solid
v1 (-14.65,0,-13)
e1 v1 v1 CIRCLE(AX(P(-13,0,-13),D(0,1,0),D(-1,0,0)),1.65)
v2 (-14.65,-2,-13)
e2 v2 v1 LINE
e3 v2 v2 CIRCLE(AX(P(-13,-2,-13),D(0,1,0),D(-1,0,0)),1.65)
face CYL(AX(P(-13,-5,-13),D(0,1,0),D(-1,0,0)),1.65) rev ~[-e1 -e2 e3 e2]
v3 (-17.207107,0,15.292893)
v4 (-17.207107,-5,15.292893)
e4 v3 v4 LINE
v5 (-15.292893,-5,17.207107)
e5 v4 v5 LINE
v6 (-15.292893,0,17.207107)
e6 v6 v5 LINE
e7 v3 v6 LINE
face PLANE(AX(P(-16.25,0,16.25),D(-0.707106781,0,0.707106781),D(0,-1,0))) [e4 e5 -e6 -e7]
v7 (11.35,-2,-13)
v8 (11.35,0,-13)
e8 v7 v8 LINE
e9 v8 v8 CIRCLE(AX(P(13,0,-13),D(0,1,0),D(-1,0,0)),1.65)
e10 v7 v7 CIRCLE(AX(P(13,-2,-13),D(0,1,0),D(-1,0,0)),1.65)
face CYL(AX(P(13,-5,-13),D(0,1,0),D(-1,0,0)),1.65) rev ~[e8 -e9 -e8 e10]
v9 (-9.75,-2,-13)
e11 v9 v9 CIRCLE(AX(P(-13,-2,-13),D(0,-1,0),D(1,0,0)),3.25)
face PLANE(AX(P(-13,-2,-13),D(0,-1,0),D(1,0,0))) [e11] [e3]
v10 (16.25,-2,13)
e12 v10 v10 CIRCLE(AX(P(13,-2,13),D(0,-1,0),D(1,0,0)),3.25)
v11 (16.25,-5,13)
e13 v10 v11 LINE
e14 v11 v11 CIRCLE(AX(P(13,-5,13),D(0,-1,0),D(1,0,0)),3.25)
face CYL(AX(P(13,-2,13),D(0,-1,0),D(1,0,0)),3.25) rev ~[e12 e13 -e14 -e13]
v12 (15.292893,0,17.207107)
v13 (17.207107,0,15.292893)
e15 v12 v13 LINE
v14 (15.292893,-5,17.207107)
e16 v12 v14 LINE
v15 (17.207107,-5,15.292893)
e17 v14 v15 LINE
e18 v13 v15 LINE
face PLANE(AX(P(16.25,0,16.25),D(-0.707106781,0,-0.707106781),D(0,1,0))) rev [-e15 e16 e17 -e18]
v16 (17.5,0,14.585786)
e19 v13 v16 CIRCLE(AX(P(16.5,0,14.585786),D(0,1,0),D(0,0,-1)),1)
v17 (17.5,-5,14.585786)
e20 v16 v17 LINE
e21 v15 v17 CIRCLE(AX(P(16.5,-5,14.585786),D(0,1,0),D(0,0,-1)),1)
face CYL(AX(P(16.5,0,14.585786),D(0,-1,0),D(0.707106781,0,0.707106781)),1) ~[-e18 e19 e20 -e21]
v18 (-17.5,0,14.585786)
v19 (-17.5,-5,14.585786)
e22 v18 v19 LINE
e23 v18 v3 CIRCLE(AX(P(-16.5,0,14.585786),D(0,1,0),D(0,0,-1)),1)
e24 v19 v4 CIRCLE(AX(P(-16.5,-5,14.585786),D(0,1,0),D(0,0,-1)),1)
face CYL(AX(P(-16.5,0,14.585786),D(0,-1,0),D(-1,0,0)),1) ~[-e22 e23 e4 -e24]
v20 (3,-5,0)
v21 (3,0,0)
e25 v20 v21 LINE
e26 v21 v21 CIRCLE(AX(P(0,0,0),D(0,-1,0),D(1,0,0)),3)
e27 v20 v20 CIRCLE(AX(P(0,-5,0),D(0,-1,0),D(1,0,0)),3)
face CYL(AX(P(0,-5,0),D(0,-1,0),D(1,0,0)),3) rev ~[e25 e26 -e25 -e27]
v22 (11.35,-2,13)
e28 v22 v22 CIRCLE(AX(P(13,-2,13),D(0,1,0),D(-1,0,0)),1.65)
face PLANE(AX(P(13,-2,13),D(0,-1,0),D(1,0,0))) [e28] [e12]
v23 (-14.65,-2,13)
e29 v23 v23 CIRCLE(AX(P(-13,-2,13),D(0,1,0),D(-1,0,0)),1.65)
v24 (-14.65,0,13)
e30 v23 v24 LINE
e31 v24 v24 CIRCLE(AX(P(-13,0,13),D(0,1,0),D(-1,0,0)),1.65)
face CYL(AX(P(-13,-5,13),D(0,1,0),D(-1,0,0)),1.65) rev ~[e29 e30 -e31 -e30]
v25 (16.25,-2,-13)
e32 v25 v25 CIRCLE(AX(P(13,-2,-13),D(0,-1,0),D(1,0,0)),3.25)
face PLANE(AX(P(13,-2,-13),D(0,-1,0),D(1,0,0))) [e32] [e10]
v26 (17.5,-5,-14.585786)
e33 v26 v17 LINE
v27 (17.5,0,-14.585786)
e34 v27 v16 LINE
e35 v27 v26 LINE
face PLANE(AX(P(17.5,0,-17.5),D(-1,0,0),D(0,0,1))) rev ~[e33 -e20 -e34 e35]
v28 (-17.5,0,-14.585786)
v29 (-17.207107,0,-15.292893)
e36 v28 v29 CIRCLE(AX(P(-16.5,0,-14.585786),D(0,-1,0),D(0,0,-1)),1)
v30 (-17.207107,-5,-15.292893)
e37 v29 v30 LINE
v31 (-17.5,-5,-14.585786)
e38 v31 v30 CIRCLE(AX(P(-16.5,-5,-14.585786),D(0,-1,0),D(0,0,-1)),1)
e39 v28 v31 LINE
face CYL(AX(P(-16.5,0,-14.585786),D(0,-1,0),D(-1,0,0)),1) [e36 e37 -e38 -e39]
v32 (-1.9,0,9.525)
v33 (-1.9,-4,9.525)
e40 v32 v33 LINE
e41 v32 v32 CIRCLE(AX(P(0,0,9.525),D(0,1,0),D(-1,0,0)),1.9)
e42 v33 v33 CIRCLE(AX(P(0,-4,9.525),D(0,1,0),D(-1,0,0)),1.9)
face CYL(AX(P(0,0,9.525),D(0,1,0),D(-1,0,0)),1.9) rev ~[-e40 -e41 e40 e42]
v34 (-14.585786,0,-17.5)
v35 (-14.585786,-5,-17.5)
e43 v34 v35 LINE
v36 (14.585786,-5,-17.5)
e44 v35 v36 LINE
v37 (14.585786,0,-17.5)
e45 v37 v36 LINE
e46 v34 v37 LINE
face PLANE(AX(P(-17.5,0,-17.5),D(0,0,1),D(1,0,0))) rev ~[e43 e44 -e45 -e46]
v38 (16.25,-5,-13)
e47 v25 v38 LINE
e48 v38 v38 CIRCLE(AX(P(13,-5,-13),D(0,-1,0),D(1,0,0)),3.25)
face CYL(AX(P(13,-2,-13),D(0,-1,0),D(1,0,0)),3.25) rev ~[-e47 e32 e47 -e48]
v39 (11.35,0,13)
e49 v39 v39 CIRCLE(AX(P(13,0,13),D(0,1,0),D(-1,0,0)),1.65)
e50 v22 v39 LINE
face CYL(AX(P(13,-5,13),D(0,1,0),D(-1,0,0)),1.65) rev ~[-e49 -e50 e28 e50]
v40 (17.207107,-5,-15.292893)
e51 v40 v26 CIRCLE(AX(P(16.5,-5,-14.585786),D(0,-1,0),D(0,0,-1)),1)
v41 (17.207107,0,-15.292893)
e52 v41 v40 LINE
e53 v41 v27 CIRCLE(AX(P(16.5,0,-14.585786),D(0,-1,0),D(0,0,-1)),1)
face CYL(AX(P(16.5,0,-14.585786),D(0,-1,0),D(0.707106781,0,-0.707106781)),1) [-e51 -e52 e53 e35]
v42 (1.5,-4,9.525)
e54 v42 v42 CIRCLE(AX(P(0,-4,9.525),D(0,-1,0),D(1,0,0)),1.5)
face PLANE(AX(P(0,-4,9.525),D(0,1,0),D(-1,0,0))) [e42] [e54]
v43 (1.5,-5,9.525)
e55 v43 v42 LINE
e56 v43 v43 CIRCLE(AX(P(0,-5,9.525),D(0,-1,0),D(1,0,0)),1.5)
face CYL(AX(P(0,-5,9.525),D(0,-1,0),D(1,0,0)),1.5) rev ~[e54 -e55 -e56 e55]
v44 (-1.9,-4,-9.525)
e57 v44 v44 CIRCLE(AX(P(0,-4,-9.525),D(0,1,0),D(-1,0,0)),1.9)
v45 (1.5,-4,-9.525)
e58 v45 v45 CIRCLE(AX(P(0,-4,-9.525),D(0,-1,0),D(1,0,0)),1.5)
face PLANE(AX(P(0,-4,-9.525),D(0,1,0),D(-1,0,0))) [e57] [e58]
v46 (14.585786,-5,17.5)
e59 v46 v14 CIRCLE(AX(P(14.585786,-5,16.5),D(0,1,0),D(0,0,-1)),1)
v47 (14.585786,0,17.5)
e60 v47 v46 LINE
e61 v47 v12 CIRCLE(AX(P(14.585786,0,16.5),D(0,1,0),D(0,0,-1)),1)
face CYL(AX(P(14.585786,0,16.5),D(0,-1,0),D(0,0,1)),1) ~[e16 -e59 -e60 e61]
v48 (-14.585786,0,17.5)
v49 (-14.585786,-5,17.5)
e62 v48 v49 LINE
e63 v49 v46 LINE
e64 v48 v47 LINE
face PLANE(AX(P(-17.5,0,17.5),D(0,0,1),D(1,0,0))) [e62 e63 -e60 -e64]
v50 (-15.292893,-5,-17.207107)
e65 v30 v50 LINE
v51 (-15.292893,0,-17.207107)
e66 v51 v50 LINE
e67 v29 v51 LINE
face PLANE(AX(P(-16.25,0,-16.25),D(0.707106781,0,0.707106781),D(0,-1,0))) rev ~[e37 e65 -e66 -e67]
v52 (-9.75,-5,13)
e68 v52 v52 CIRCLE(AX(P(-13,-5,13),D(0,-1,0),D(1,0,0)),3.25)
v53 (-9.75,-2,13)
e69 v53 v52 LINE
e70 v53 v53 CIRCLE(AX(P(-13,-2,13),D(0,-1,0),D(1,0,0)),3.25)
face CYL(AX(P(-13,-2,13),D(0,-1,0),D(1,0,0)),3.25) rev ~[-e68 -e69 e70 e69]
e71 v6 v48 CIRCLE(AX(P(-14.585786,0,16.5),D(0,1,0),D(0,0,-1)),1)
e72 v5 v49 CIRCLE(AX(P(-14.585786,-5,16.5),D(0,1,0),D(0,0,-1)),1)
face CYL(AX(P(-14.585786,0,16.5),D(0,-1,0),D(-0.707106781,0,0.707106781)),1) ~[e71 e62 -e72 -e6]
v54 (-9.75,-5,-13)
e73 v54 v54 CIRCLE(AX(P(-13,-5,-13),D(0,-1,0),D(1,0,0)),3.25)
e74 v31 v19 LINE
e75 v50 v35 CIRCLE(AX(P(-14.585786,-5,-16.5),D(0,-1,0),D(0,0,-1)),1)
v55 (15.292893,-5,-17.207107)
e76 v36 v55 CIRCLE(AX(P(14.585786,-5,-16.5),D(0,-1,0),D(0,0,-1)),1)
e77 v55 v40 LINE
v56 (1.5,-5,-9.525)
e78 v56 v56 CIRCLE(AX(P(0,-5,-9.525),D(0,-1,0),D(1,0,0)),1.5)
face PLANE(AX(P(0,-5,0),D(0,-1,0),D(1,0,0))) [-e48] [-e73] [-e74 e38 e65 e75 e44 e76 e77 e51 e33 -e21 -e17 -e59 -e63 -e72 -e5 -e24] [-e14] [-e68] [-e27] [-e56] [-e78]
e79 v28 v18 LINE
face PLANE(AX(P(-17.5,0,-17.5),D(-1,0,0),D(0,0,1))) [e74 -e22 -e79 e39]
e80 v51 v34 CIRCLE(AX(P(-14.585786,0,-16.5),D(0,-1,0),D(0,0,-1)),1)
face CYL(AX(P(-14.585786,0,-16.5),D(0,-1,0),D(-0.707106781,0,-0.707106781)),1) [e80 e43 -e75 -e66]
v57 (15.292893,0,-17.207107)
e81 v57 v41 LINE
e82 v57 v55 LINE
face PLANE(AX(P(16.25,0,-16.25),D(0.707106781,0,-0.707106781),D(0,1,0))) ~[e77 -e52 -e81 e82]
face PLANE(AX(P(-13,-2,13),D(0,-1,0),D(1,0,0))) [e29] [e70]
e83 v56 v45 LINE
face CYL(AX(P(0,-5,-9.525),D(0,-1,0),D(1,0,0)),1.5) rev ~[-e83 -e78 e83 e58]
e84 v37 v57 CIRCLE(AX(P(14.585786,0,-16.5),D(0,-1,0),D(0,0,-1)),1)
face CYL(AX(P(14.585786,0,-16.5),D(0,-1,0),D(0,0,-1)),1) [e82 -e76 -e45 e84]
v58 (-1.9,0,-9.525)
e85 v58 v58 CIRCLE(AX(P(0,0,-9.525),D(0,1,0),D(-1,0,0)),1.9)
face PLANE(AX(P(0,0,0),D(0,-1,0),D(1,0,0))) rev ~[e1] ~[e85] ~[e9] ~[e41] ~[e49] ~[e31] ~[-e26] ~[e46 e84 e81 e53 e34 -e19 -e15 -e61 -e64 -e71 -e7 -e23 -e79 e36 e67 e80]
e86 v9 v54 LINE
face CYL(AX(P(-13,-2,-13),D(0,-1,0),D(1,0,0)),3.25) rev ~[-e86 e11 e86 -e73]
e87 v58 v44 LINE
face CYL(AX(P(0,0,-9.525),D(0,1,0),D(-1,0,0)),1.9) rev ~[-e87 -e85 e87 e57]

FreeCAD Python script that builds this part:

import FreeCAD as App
import Part
import Sketcher

V = App.Vector


def edges_at(feature, points):
    """Names of the edges that pass closest to the given points."""
    edges = feature.Shape.Edges
    near = lambda p: min(range(len(edges)), key=lambda i: edges[i].distToShape(Part.Vertex(*p))[0])
    return sorted({f"Edge{near(p) + 1}" for p in points})


def add_polygon(sketch, points):
    """Adds a closed chain of lines whose ends are joined by coincident constraints."""
    first, n = sketch.GeometryCount, len(points)
    for a, b in zip(points, points[1:] + points[:1]):
        sketch.addGeometry(Part.LineSegment(App.Vector(*a, 0), App.Vector(*b, 0)), False)
    for i in range(n):
        sketch.addConstraint(Sketcher.Constraint("Coincident", first + i, 2, first + (i + 1) % n, 1))

doc = App.newDocument("Part")
body = doc.addObject("PartDesign::Body", "Body")

sketch1 = doc.addObject("Sketcher::SketchObject", "Sketch")
body.addObject(sketch1)
sketch1.AttachmentSupport = (doc.XZ_Plane, [""])
sketch1.MapMode = "FlatFace"
add_polygon(sketch1, [(-17.5, 17.5), (-17.5, -17.5), (17.5, -17.5), (17.5, 17.5)])
sketch1.addConstraint(Sketcher.Constraint("Vertical", 0))
sketch1.addConstraint(Sketcher.Constraint("Horizontal", 1))
sketch1.addConstraint(Sketcher.Constraint("Vertical", 2))
sketch1.addConstraint(Sketcher.Constraint("Horizontal", 3))
sketch1.addConstraint(Sketcher.Constraint("Symmetric", 0, 2, 2, 2, -1, 1))
sketch1.addConstraint(Sketcher.Constraint("Equal", 3, 0))
sketch1.addConstraint(Sketcher.Constraint("DistanceX", 1, 1, 1, 2, 35.0))
pad1 = doc.addObject("PartDesign::Pad", "Pad")
body.addObject(pad1)
pad1.Profile = sketch1
pad1.Length = 5

sketch2 = doc.addObject("Sketcher::SketchObject", "Sketch001")
body.addObject(sketch2)
sketch2.AttachmentSupport = (doc.XZ_Plane, [""])
sketch2.MapMode = "FlatFace"
sketch2.AttachmentOffset = App.Placement(V(0, 0, 5), App.Rotation())
sketch2.addGeometry(Part.Circle(V(0, 0, 0), V(0, 0, 1), 3), False)
sketch2.addConstraint(Sketcher.Constraint("Coincident", 0, 3, -1, 1))
sketch2.addConstraint(Sketcher.Constraint("Diameter", 0, 6.0))
pocket1 = doc.addObject("PartDesign::Pocket", "Pocket")
body.addObject(pocket1)
pocket1.Profile = sketch2
pocket1.Type = "ThroughAll"

sketch3 = doc.addObject("Sketcher::SketchObject", "Sketch002")
body.addObject(sketch3)
sketch3.AttachmentSupport = (doc.XZ_Plane, [""])
sketch3.MapMode = "FlatFace"
sketch3.AttachmentOffset = App.Placement(V(0, 0, 5), App.Rotation())
sketch3.addGeometry(Part.Circle(V(-13, 13, 0), V(0, 0, 1), 1.65), False)
sketch3.addGeometry(Part.Circle(V(13, 13, 0), V(0, 0, 1), 1.65), False)
sketch3.addGeometry(Part.Circle(V(13, -13, 0), V(0, 0, 1), 1.65), False)
sketch3.addGeometry(Part.Circle(V(-13, -13, 0), V(0, 0, 1), 1.65), False)
sketch3.addConstraint(Sketcher.Constraint("Equal", 0, 1))
sketch3.addConstraint(Sketcher.Constraint("Equal", 1, 2))
sketch3.addConstraint(Sketcher.Constraint("Equal", 2, 3))
sketch3.addConstraint(Sketcher.Constraint("Symmetric", 0, 3, 2, 3, -1, 1))
sketch3.addConstraint(Sketcher.Constraint("Symmetric", 1, 3, 3, 3, -1, 1))
sketch3.addConstraint(Sketcher.Constraint("Symmetric", 0, 3, 1, 3, -2))
sketch3.addConstraint(Sketcher.Constraint("Diameter", 0, 3.3))
sketch3.addConstraint(Sketcher.Constraint("DistanceX", 0, 3, -1, 1, 13.0))
sketch3.addConstraint(Sketcher.Constraint("DistanceY", -1, 1, 0, 3, 13.0))
doc.recompute()
hole = doc.addObject("PartDesign::Hole", "Hole")
body.addObject(hole)
hole.Profile = sketch3
hole.ThreadType = "None"
hole.Diameter = 3.3
hole.DepthType = "ThroughAll"
hole.HoleCutType = "Counterbore"
hole.HoleCutDiameter = 6.5
hole.HoleCutDepth = 3
doc.recompute()

chamfer = doc.addObject("PartDesign::Chamfer", "Chamfer")
body.addObject(chamfer)
chamfer.Base = (hole, edges_at(hole, [
    (17.5, -2.5, 17.5),
    (-17.5, -2.5, 17.5),
    (17.5, -2.5, -17.5),
    (-17.5, -2.5, -17.5),
]))
chamfer.Size = 2.5
doc.recompute()

fillet = doc.addObject("PartDesign::Fillet", "Fillet")
body.addObject(fillet)
fillet.Base = (chamfer, edges_at(chamfer, [
    (15, -2.5, 17.5),
    (17.5, -2.5, 15),
    (17.5, -2.5, -15),
    (15, -2.5, -17.5),
    (-15, -2.5, -17.5),
    (-17.5, -2.5, -15),
    (-15, -2.5, 17.5),
    (-17.5, -2.5, 15),
]))
fillet.Radius = 1

sketch4 = doc.addObject("Sketcher::SketchObject", "Sketch003")
body.addObject(sketch4)
sketch4.AttachmentSupport = (doc.XZ_Plane, [""])
sketch4.MapMode = "FlatFace"
sketch4.AttachmentOffset = App.Placement(V(0, 0, 5), App.Rotation())
sketch4.addGeometry(Part.Circle(V(0, 9.525, 0), V(0, 0, 1), 1.5), False)
sketch4.addGeometry(Part.Circle(V(0, -9.525, 0), V(0, 0, 1), 1.5), False)
sketch4.addConstraint(Sketcher.Constraint("Equal", 0, 1))
sketch4.addConstraint(Sketcher.Constraint("Symmetric", 0, 3, 1, 3, -1, 1))
sketch4.addConstraint(Sketcher.Constraint("PointOnObject", 0, 3, -2))
sketch4.addConstraint(Sketcher.Constraint("Diameter", 0, 3.0))
sketch4.addConstraint(Sketcher.Constraint("DistanceY", 1, 3, 0, 3, 19.05))
pocket2 = doc.addObject("PartDesign::Pocket", "Pocket001")
body.addObject(pocket2)
pocket2.Profile = sketch4
pocket2.Type = "ThroughAll"

sketch5 = doc.addObject("Sketcher::SketchObject", "Sketch004")
body.addObject(sketch5)
sketch5.AttachmentSupport = (doc.XZ_Plane, [""])
sketch5.MapMode = "FlatFace"
sketch5.addGeometry(Part.Circle(V(0, -9.525, 0), V(0, 0, 1), 1.9), False)
sketch5.addGeometry(Part.Circle(V(0, 9.525, 0), V(0, 0, 1), 1.9), False)
sketch5.addConstraint(Sketcher.Constraint("Equal", 0, 1))
sketch5.addConstraint(Sketcher.Constraint("Symmetric", 0, 3, 1, 3, -1, 1))
sketch5.addConstraint(Sketcher.Constraint("PointOnObject", 0, 3, -2))
sketch5.addConstraint(Sketcher.Constraint("Diameter", 0, 3.8))
sketch5.addConstraint(Sketcher.Constraint("DistanceY", 0, 3, 1, 3, 19.05))
pocket3 = doc.addObject("PartDesign::Pocket", "Pocket002")
body.addObject(pocket3)
pocket3.Profile = sketch5
pocket3.Length = 4
pocket3.Reversed = True

doc.recompute()
